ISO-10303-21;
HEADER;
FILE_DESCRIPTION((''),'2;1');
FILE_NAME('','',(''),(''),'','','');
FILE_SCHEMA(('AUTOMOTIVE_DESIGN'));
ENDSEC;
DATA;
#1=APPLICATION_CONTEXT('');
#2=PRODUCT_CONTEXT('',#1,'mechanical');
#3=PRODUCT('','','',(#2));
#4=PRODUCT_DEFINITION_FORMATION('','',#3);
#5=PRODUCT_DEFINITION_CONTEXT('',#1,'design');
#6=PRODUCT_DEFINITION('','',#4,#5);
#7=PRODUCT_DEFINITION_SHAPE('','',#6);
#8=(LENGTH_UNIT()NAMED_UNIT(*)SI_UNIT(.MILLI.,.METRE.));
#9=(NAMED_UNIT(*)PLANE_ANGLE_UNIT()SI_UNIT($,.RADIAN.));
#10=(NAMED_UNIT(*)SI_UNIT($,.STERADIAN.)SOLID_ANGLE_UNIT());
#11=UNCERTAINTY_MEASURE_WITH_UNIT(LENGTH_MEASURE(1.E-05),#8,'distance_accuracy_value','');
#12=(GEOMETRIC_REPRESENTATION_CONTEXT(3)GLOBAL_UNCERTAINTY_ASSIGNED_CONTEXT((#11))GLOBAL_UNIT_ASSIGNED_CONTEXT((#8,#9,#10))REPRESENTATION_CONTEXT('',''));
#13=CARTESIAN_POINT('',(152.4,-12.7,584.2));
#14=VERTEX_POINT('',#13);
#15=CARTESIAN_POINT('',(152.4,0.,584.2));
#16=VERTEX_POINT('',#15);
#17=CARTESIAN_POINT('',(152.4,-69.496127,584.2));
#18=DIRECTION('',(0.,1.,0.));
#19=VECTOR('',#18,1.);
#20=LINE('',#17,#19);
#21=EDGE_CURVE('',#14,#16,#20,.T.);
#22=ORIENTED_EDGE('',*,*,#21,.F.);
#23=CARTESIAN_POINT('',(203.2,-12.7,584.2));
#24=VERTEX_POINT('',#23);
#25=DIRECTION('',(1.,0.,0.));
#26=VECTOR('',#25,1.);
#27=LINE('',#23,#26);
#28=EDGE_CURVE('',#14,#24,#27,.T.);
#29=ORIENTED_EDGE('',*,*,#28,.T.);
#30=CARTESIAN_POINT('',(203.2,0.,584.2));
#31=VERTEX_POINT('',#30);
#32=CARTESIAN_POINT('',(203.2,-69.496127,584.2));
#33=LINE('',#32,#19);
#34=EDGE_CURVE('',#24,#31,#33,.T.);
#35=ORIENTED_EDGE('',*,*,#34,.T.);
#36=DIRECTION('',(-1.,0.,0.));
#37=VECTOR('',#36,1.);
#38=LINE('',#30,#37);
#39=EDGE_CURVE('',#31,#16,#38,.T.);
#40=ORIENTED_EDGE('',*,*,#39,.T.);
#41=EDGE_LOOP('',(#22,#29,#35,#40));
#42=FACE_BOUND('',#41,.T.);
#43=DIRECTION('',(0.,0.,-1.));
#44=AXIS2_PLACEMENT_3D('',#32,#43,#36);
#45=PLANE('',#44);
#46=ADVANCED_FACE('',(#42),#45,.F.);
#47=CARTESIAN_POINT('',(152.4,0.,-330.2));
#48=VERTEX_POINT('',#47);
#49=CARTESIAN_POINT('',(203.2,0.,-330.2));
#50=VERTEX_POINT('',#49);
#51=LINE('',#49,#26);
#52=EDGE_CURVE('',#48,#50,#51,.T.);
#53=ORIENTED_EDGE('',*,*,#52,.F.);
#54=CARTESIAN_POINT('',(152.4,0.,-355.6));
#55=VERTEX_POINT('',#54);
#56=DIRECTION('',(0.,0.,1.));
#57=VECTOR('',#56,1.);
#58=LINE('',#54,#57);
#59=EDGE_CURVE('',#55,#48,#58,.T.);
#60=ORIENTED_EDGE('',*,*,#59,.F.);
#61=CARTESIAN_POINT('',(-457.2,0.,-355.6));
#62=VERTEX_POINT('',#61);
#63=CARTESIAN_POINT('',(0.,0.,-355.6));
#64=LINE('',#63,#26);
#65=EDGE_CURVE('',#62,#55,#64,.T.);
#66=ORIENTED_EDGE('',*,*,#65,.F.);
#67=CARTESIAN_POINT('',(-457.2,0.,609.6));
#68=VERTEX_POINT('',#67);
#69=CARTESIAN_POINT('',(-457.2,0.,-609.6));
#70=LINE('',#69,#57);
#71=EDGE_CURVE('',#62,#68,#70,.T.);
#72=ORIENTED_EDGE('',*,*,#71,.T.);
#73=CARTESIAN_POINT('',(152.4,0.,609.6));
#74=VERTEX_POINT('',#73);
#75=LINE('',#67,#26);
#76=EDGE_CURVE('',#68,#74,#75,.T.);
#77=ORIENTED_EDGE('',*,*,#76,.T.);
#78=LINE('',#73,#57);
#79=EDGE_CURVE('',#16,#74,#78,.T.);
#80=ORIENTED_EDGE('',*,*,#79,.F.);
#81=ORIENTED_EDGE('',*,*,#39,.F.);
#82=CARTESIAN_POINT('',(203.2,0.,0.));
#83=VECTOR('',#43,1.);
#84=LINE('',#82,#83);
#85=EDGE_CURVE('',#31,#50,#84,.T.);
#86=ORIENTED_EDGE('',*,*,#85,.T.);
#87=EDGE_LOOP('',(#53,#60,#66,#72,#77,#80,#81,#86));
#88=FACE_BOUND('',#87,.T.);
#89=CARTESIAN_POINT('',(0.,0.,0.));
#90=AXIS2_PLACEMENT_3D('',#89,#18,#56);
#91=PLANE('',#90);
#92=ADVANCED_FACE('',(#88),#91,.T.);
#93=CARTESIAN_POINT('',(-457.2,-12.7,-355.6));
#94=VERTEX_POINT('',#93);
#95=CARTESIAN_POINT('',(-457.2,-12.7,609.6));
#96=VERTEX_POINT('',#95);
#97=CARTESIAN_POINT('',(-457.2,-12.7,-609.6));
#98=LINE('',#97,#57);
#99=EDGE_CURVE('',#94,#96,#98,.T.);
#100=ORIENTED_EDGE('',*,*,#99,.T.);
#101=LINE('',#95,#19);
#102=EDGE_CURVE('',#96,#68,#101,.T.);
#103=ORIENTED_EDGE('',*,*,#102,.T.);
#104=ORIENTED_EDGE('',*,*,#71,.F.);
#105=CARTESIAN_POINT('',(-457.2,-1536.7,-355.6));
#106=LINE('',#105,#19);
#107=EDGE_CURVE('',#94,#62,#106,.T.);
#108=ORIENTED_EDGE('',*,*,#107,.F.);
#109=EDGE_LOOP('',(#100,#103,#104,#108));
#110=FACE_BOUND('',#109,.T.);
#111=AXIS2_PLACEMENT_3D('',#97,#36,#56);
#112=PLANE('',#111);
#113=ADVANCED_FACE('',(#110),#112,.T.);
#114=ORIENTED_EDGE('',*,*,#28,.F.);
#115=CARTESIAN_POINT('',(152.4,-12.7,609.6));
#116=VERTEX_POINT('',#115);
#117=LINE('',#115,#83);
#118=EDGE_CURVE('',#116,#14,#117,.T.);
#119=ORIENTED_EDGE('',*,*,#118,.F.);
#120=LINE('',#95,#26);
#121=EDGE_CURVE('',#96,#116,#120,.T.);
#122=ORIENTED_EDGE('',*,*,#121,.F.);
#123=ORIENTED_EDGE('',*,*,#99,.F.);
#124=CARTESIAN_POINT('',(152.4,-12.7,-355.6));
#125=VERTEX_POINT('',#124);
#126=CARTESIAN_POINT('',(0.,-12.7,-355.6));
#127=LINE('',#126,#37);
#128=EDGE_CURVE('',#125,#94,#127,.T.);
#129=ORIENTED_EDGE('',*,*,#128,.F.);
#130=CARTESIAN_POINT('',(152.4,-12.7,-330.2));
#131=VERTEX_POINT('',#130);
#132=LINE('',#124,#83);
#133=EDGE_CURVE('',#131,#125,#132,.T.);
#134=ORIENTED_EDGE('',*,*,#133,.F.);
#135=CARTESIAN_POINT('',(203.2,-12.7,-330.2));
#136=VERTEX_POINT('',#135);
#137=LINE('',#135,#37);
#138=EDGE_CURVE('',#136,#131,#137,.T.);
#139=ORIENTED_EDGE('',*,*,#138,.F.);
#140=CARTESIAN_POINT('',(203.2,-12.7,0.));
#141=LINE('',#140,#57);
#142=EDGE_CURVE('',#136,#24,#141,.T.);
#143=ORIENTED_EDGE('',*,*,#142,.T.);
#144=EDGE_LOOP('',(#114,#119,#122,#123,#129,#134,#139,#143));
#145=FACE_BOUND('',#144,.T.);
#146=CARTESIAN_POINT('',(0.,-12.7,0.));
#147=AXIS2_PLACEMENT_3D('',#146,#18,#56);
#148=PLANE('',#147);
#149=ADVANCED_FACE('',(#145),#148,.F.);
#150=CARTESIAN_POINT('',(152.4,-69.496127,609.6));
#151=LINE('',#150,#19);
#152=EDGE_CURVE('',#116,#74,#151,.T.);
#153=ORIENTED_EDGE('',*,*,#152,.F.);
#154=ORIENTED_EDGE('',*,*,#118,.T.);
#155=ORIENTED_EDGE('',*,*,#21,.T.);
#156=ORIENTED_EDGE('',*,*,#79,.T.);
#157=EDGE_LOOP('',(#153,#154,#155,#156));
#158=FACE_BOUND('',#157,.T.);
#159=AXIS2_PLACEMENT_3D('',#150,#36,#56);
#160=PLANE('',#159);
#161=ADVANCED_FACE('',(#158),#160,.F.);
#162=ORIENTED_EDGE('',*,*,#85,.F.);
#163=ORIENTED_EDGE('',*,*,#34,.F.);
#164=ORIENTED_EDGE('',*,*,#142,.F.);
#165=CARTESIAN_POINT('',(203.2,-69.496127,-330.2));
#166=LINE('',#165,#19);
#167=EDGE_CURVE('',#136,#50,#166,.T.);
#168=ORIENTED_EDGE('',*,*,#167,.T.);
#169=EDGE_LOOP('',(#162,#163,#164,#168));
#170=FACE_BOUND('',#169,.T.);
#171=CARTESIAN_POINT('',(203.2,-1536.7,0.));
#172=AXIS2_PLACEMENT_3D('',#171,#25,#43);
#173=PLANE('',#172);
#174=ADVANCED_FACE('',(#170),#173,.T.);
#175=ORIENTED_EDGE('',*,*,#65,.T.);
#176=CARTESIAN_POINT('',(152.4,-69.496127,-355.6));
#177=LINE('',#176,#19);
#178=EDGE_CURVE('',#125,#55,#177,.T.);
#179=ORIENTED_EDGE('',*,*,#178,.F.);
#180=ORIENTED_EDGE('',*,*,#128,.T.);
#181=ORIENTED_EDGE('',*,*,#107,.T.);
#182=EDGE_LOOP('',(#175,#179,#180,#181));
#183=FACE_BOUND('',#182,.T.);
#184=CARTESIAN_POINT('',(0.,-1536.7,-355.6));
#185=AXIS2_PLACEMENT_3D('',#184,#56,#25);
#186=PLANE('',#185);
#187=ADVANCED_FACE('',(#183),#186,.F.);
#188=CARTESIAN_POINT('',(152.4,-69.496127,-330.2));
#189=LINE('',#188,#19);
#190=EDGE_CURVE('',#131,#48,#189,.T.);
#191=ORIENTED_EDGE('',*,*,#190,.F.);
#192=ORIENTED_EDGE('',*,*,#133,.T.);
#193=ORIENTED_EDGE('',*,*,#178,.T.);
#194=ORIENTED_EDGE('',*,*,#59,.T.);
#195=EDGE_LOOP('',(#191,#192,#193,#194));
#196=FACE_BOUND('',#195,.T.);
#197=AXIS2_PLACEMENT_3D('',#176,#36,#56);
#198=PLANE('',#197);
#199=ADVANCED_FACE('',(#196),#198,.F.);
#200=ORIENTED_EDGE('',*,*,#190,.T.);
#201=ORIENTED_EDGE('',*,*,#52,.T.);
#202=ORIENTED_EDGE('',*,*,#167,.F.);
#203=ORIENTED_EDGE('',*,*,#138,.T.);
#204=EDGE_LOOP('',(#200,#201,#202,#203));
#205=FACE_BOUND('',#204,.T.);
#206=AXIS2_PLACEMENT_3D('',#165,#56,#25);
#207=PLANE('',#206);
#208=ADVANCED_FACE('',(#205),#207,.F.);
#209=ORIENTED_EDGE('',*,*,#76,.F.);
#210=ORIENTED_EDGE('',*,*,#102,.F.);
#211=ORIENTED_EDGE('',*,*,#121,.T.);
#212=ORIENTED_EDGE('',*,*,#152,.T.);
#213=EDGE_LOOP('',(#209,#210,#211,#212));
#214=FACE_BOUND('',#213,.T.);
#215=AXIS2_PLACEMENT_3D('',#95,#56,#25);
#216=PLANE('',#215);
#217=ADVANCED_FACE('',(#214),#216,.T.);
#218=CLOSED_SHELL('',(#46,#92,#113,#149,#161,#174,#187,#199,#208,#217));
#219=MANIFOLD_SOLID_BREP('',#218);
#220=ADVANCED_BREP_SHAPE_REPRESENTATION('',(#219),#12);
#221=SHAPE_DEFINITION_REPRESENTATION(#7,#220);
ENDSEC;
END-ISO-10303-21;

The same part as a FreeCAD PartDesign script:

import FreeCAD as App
import Part
import Sketcher

V = App.Vector
Q = App.Units.Quantity

doc = App.newDocument("Part")
body = doc.addObject("PartDesign::Body", "Body")

sketch1 = body.newObject("Sketcher::SketchObject", "Sketch")
sketch1.AttachmentSupport = (doc.getObject("XZ_Plane"), [""])
sketch1.MapMode = "FlatFace"
sketch1.addGeometry(Part.LineSegment(V(-457, -610, 0), V(-457, 610, 0)), False)
sketch1.addGeometry(Part.LineSegment(V(-457, 610, 0), V(457, 610, 0)), False)
sketch1.addGeometry(Part.LineSegment(V(457, 610, 0), V(457, -610, 0)), False)
sketch1.addGeometry(Part.LineSegment(V(457, -610, 0), V(-457, -610, 0)), False)
sketch1.addConstraint(Sketcher.Constraint("Coincident", 0, 2, 1, 1))
sketch1.addConstraint(Sketcher.Constraint("Coincident", 1, 2, 2, 1))
sketch1.addConstraint(Sketcher.Constraint("Coincident", 2, 2, 3, 1))
sketch1.addConstraint(Sketcher.Constraint("Coincident", 3, 2, 0, 1))
sketch1.addConstraint(Sketcher.Constraint("Vertical", 0))
sketch1.addConstraint(Sketcher.Constraint("Horizontal", 1))
sketch1.addConstraint(Sketcher.Constraint("Vertical", 2))
sketch1.addConstraint(Sketcher.Constraint("Horizontal", 3))
sketch1.addConstraint(Sketcher.Constraint("Symmetric", 0, 2, 2, 2, -1, 1))
sketch1.addConstraint(Sketcher.Constraint("DistanceX", 1, 1, 1, 2, Q("36 in")))
sketch1.addConstraint(Sketcher.Constraint("DistanceY", 0, 1, 0, 2, Q("48 in")))
pad1 = body.newObject("PartDesign::Pad", "Pad")
pad1.Profile = sketch1
pad1.Length = Q("0.5 in")

sketch2 = body.newObject("Sketcher::SketchObject", "Sketch001")
sketch2.AttachmentSupport = (doc.getObject("XZ_Plane"), [""])
sketch2.MapMode = "FlatFace"
sketch2.addGeometry(Part.LineSegment(V(-457, -610, 0), V(-457, -356, 0)), False)
sketch2.addGeometry(Part.LineSegment(V(-457, -356, 0), V(203, -356, 0)), False)
sketch2.addGeometry(Part.LineSegment(V(203, -356, 0), V(203, 610, 0)), False)
sketch2.addGeometry(Part.LineSegment(V(203, 610, 0), V(457, 610, 0)), False)
sketch2.addGeometry(Part.LineSegment(V(457, 610, 0), V(457, -610, 0)), False)
sketch2.addGeometry(Part.LineSegment(V(457, -610, 0), V(-457, -610, 0)), False)
sketch2.addConstraint(Sketcher.Constraint("Coincident", 0, 2, 1, 1))
sketch2.addConstraint(Sketcher.Constraint("Coincident", 1, 2, 2, 1))
sketch2.addConstraint(Sketcher.Constraint("Coincident", 2, 2, 3, 1))
sketch2.addConstraint(Sketcher.Constraint("Coincident", 3, 2, 4, 1))
sketch2.addConstraint(Sketcher.Constraint("Coincident", 4, 2, 5, 1))
sketch2.addConstraint(Sketcher.Constraint("Coincident", 5, 2, 0, 1))
sketch2.addConstraint(Sketcher.Constraint("Vertical", 0))
sketch2.addConstraint(Sketcher.Constraint("Horizontal", 1))
sketch2.addConstraint(Sketcher.Constraint("Vertical", 2))
sketch2.addConstraint(Sketcher.Constraint("Horizontal", 3))
sketch2.addConstraint(Sketcher.Constraint("Vertical", 4))
sketch2.addConstraint(Sketcher.Constraint("Horizontal", 5))
sketch2.addConstraint(Sketcher.Constraint("Symmetric", 3, 2, 5, 2, -1, 1))
sketch2.addConstraint(Sketcher.Constraint("Equal", 3, 0))
sketch2.addConstraint(Sketcher.Constraint("DistanceX", 1, 1, 1, 2, Q("26 in")))
sketch2.addConstraint(Sketcher.Constraint("DistanceX", 3, 1, 3, 2, Q("10 in")))
sketch2.addConstraint(Sketcher.Constraint("DistanceY", 2, 1, 2, 2, Q("38 in")))
pocket1 = body.newObject("PartDesign::Pocket", "Pocket")
pocket1.Profile = sketch2
pocket1.Length = Q("0.5 in")
pocket1.Reversed = True

sketch3 = body.newObject("Sketcher::SketchObject", "Sketch002")
sketch3.AttachmentSupport = (doc.getObject("XZ_Plane"), [""])
sketch3.MapMode = "FlatFace"
sketch3.addGeometry(Part.LineSegment(V(152, -356, 0), V(152, -330, 0)), False)
sketch3.addGeometry(Part.LineSegment(V(152, -330, 0), V(203, -330, 0)), False)
sketch3.addGeometry(Part.LineSegment(V(203, -330, 0), V(203, -356, 0)), False)
sketch3.addGeometry(Part.LineSegment(V(203, -356, 0), V(152, -356, 0)), False)
sketch3.addGeometry(Part.LineSegment(V(152, 584, 0), V(152, 610, 0)), False)
sketch3.addGeometry(Part.LineSegment(V(152, 610, 0), V(203, 610, 0)), False)
sketch3.addGeometry(Part.LineSegment(V(203, 610, 0), V(203, 584, 0)), False)
sketch3.addGeometry(Part.LineSegment(V(203, 584, 0), V(152, 584, 0)), False)
sketch3.addConstraint(Sketcher.Constraint("Coincident", 0, 2, 1, 1))
sketch3.addConstraint(Sketcher.Constraint("Coincident", 1, 2, 2, 1))
sketch3.addConstraint(Sketcher.Constraint("Coincident", 2, 2, 3, 1))
sketch3.addConstraint(Sketcher.Constraint("Coincident", 3, 2, 0, 1))
sketch3.addConstraint(Sketcher.Constraint("Coincident", 4, 2, 5, 1))
sketch3.addConstraint(Sketcher.Constraint("Coincident", 5, 2, 6, 1))
sketch3.addConstraint(Sketcher.Constraint("Coincident", 6, 2, 7, 1))
sketch3.addConstraint(Sketcher.Constraint("Coincident", 7, 2, 4, 1))
sketch3.addConstraint(Sketcher.Constraint("Vertical", 0))
sketch3.addConstraint(Sketcher.Constraint("Horizontal", 1))
sketch3.addConstraint(Sketcher.Constraint("Vertical", 2))
sketch3.addConstraint(Sketcher.Constraint("Horizontal", 3))
sketch3.addConstraint(Sketcher.Constraint("Vertical", 4))
sketch3.addConstraint(Sketcher.Constraint("Horizontal", 5))
sketch3.addConstraint(Sketcher.Constraint("Vertical", 6))
sketch3.addConstraint(Sketcher.Constraint("Horizontal", 7))
sketch3.addConstraint(Sketcher.Constraint("Vertical", 3, 2, 4, 2))
sketch3.addConstraint(Sketcher.Constraint("Vertical", 2, 2, 5, 2))
sketch3.addConstraint(Sketcher.Constraint("Equal", 2, 4))
sketch3.addConstraint(Sketcher.Constraint("DistanceX", 1, 1, 1, 2, Q("2 in")))
sketch3.addConstraint(Sketcher.Constraint("DistanceY", 0, 1, 0, 2, Q("1 in")))
sketch3.addConstraint(Sketcher.Constraint("DistanceX", -1, 1, 0, 2, Q("6 in")))
sketch3.addConstraint(Sketcher.Constraint("DistanceY", 0, 2, -1, 1, Q("13 in")))
sketch3.addConstraint(Sketcher.Constraint("DistanceY", -1, 1, 4, 2, Q("24 in")))
pocket2 = body.newObject("PartDesign::Pocket", "Pocket001")
pocket2.Profile = sketch3
pocket2.Length = Q("0.5 in")
pocket2.Reversed = True

doc.recompute()
